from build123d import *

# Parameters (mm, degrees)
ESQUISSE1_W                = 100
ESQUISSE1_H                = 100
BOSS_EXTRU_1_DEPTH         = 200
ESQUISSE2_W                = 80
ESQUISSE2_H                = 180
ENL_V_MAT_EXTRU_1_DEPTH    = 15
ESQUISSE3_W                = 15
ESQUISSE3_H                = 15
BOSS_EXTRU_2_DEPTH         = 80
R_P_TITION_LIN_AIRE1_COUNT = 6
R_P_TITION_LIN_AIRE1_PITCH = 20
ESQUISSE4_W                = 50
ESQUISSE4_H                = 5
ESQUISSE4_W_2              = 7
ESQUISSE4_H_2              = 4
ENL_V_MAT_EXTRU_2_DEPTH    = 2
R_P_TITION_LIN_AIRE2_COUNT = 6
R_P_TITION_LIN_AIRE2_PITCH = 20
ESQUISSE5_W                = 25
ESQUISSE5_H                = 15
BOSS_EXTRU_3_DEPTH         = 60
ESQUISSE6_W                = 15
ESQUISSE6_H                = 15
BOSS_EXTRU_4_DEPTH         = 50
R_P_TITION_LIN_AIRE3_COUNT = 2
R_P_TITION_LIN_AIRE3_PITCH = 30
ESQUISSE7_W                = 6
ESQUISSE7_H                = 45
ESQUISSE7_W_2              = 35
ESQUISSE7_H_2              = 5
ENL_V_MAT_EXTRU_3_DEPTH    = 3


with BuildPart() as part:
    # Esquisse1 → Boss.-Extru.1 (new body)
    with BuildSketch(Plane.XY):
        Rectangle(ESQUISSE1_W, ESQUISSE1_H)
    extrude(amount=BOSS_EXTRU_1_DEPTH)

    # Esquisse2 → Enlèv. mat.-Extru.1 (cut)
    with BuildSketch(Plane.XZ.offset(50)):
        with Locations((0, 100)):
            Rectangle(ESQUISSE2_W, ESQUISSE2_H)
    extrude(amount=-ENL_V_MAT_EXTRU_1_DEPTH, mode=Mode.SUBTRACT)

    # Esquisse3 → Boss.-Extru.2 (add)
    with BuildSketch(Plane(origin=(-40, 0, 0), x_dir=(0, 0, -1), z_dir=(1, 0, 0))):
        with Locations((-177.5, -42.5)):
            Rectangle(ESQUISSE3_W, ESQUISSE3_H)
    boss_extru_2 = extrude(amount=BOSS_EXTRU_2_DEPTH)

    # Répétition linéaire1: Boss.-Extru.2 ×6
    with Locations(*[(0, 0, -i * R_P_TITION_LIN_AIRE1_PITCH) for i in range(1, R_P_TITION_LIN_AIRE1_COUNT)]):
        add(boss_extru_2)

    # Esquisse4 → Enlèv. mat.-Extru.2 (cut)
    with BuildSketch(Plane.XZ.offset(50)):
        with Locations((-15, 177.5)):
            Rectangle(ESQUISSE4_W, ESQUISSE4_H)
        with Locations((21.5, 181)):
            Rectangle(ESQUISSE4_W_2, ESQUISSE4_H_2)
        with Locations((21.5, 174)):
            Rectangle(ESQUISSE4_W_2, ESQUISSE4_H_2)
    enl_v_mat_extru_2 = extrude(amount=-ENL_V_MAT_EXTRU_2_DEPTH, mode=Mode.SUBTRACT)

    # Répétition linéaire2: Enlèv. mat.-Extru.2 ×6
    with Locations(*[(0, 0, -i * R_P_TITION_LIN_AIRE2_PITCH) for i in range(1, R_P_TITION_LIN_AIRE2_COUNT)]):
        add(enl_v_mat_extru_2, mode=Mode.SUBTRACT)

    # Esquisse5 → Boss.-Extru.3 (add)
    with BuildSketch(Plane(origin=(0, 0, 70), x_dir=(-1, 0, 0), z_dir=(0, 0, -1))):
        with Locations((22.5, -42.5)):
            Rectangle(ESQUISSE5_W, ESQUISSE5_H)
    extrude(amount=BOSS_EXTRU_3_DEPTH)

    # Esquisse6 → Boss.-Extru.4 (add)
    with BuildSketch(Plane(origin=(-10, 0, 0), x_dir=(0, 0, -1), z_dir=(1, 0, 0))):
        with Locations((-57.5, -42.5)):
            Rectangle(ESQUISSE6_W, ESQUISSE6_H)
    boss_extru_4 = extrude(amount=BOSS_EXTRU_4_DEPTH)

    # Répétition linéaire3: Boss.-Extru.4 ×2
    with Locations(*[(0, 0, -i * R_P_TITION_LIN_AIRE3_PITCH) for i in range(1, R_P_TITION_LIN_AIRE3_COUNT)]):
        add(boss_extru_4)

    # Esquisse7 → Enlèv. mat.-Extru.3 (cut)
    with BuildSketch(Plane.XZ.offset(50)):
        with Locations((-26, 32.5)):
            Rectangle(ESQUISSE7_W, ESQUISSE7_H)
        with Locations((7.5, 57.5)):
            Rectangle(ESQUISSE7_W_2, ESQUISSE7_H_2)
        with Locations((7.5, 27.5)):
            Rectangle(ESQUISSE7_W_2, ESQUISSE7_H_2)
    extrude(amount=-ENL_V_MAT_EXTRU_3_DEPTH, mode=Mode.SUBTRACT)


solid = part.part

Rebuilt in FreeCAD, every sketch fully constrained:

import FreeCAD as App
import Part
import Sketcher
Q = App.Units.Quantity

doc = App.newDocument("Part")
body = doc.addObject("PartDesign::Body", "Body")

# Sketch on XY plane
sketch1 = body.newObject("Sketcher::SketchObject", "Sketch")
sketch1.AttachmentSupport = (doc.getObject("XY_Plane"), [""])
sketch1.MapMode = "FlatFace"
sketch1.addGeometry([
    Part.LineSegment(App.Vector(-50, 50, 0), App.Vector(-50, -50, 0)),
    Part.LineSegment(App.Vector(-50, -50, 0), App.Vector(50, -50, 0)),
    Part.LineSegment(App.Vector(50, -50, 0), App.Vector(50, 50, 0)),
    Part.LineSegment(App.Vector(50, 50, 0), App.Vector(-50, 50, 0)),
], False)
sketch1.addConstraint([
    Sketcher.Constraint("Coincident", 0, 2, 1, 1),
    Sketcher.Constraint("Coincident", 1, 2, 2, 1),
    Sketcher.Constraint("Coincident", 2, 2, 3, 1),
    Sketcher.Constraint("Coincident", 3, 2, 0, 1),
    Sketcher.Constraint("Vertical", 0),
    Sketcher.Constraint("Horizontal", 1),
    Sketcher.Constraint("Vertical", 2),
    Sketcher.Constraint("Horizontal", 3),
    Sketcher.Constraint("Symmetric", 0, 2, 2, 2, -1, 1),
    Sketcher.Constraint("Equal", 3, 0),
    Sketcher.Constraint("DistanceX", 1, 1, 1, 2, Q("100 mm")),
])
pad1 = body.newObject("PartDesign::Pad", "Pad")
pad1.Profile = sketch1
pad1.Length = 200

# Sketch on XZ plane
sketch2 = body.newObject("Sketcher::SketchObject", "Sketch001")
sketch2.AttachmentSupport = (doc.getObject("XZ_Plane"), [""])
sketch2.MapMode = "FlatFace"
sketch2.AttachmentOffset = App.Placement(App.Vector(0, 0, 50), App.Rotation())
sketch2.addGeometry([
    Part.LineSegment(App.Vector(-40, 190, 0), App.Vector(-40, 10, 0)),
    Part.LineSegment(App.Vector(-40, 10, 0), App.Vector(40, 10, 0)),
    Part.LineSegment(App.Vector(40, 10, 0), App.Vector(40, 190, 0)),
    Part.LineSegment(App.Vector(40, 190, 0), App.Vector(-40, 190, 0)),
], False)
sketch2.addConstraint([
    Sketcher.Constraint("Coincident", 0, 2, 1, 1),
    Sketcher.Constraint("Coincident", 1, 2, 2, 1),
    Sketcher.Constraint("Coincident", 2, 2, 3, 1),
    Sketcher.Constraint("Coincident", 3, 2, 0, 1),
    Sketcher.Constraint("Vertical", 0),
    Sketcher.Constraint("Horizontal", 1),
    Sketcher.Constraint("Vertical", 2),
    Sketcher.Constraint("Horizontal", 3),
    Sketcher.Constraint("DistanceX", 1, 1, 1, 2, Q("80 mm")),
    Sketcher.Constraint("DistanceY", 0, 2, 0, 1, Q("180 mm")),
    Sketcher.Constraint("DistanceX", 0, 2, -1, 1, Q("40 mm")),
    Sketcher.Constraint("DistanceY", -1, 1, 0, 2, Q("10 mm")),
])
pocket1 = body.newObject("PartDesign::Pocket", "Pocket")
pocket1.Profile = sketch2
pocket1.Length = 15

# Sketch on YZ plane
sketch3 = body.newObject("Sketcher::SketchObject", "Sketch002")
sketch3.AttachmentSupport = (doc.getObject("YZ_Plane"), [""])
sketch3.MapMode = "FlatFace"
sketch3.AttachmentOffset = App.Placement(App.Vector(0, 0, -40), App.Rotation())
sketch3.addGeometry([
    Part.LineSegment(App.Vector(-35, 185, 0), App.Vector(-50, 185, 0)),
    Part.LineSegment(App.Vector(-50, 185, 0), App.Vector(-50, 170, 0)),
    Part.LineSegment(App.Vector(-50, 170, 0), App.Vector(-35, 170, 0)),
    Part.LineSegment(App.Vector(-35, 170, 0), App.Vector(-35, 185, 0)),
], False)
sketch3.addConstraint([
    Sketcher.Constraint("Coincident", 0, 2, 1, 1),
    Sketcher.Constraint("Coincident", 1, 2, 2, 1),
    Sketcher.Constraint("Coincident", 2, 2, 3, 1),
    Sketcher.Constraint("Coincident", 3, 2, 0, 1),
    Sketcher.Constraint("Horizontal", 0),
    Sketcher.Constraint("Vertical", 1),
    Sketcher.Constraint("Horizontal", 2),
    Sketcher.Constraint("Vertical", 3),
    Sketcher.Constraint("Equal", 2, 1),
    Sketcher.Constraint("DistanceX", 0, 2, 0, 1, Q("15 mm")),
    Sketcher.Constraint("DistanceX", 0, 2, -1, 1, Q("50 mm")),
    Sketcher.Constraint("DistanceY", -1, 1, 0, 2, Q("185 mm")),
])
pad2 = body.newObject("PartDesign::Pad", "Pad001")
pad2.Profile = sketch3
pad2.Length = 80
doc.recompute()

linearpattern = body.newObject("PartDesign::LinearPattern", "LinearPattern")
linearpattern.Originals = [pad2]
linearpattern.Direction = (doc.getObject("Z_Axis"), [""])
linearpattern.Mode = "offset"
linearpattern.Offset = 20
linearpattern.Occurrences = 6
linearpattern.Reversed = True
body.Tip = linearpattern

# Sketch on XZ plane
sketch4 = body.newObject("Sketcher::SketchObject", "Sketch003")
sketch4.AttachmentSupport = (doc.getObject("XZ_Plane"), [""])
sketch4.MapMode = "FlatFace"
sketch4.AttachmentOffset = App.Placement(App.Vector(0, 0, 50), App.Rotation())
sketch4.addGeometry([
    Part.LineSegment(App.Vector(-40, 180, 0), App.Vector(-40, 175, 0)),  # 0
    Part.LineSegment(App.Vector(-40, 175, 0), App.Vector(10, 175, 0)),  # 1
    Part.LineSegment(App.Vector(10, 175, 0), App.Vector(10, 180, 0)),  # 2
    Part.LineSegment(App.Vector(10, 180, 0), App.Vector(-40, 180, 0)),  # 3
    Part.LineSegment(App.Vector(18, 183, 0), App.Vector(18, 179, 0)),  # 4
    Part.LineSegment(App.Vector(18, 179, 0), App.Vector(25, 179, 0)),  # 5
    Part.LineSegment(App.Vector(25, 179, 0), App.Vector(25, 183, 0)),  # 6
    Part.LineSegment(App.Vector(25, 183, 0), App.Vector(18, 183, 0)),  # 7
    Part.LineSegment(App.Vector(18, 176, 0), App.Vector(18, 172, 0)),  # 8
    Part.LineSegment(App.Vector(18, 172, 0), App.Vector(25, 172, 0)),  # 9
    Part.LineSegment(App.Vector(25, 172, 0), App.Vector(25, 176, 0)),  # 10
    Part.LineSegment(App.Vector(25, 176, 0), App.Vector(18, 176, 0)),  # 11
], False)
sketch4.addConstraint([
    Sketcher.Constraint("Coincident", 0, 2, 1, 1),
    Sketcher.Constraint("Coincident", 1, 2, 2, 1),
    Sketcher.Constraint("Coincident", 2, 2, 3, 1),
    Sketcher.Constraint("Coincident", 3, 2, 0, 1),
    Sketcher.Constraint("Coincident", 4, 2, 5, 1),
    Sketcher.Constraint("Coincident", 5, 2, 6, 1),
    Sketcher.Constraint("Coincident", 6, 2, 7, 1),
    Sketcher.Constraint("Coincident", 7, 2, 4, 1),
    Sketcher.Constraint("Coincident", 8, 2, 9, 1),
    Sketcher.Constraint("Coincident", 9, 2, 10, 1),
    Sketcher.Constraint("Coincident", 10, 2, 11, 1),
    Sketcher.Constraint("Coincident", 11, 2, 8, 1),
    Sketcher.Constraint("Vertical", 0),
    Sketcher.Constraint("Horizontal", 1),
    Sketcher.Constraint("Vertical", 2),
    Sketcher.Constraint("Horizontal", 3),
    Sketcher.Constraint("Vertical", 4),
    Sketcher.Constraint("Horizontal", 5),
    Sketcher.Constraint("Vertical", 6),
    Sketcher.Constraint("Horizontal", 7),
    Sketcher.Constraint("Vertical", 8),
    Sketcher.Constraint("Horizontal", 9),
    Sketcher.Constraint("Vertical", 10),
    Sketcher.Constraint("Horizontal", 11),
    Sketcher.Constraint("Vertical", 7, 2, 8, 2),
    Sketcher.Constraint("Vertical", 6, 2, 9, 2),
    Sketcher.Constraint("Equal", 6, 8),
    Sketcher.Constraint("DistanceX", 1, 1, 1, 2, Q("50 mm")),
    Sketcher.Constraint("DistanceX", 5, 1, 5, 2, Q("7 mm")),
    Sketcher.Constraint("DistanceY", 0, 2, 0, 1, Q("5 mm")),
    Sketcher.Constraint("DistanceY", 4, 2, 4, 1, Q("4 mm")),
    Sketcher.Constraint("DistanceX", 0, 2, -1, 1, Q("40 mm")),
    Sketcher.Constraint("DistanceY", -1, 1, 0, 2, Q("175 mm")),
    Sketcher.Constraint("DistanceX", -1, 1, 4, 2, Q("18 mm")),
    Sketcher.Constraint("DistanceY", -1, 1, 4, 2, Q("179 mm")),
    Sketcher.Constraint("DistanceY", -1, 1, 8, 2, Q("172 mm")),
])
pocket2 = body.newObject("PartDesign::Pocket", "Pocket001")
pocket2.Profile = sketch4
pocket2.Length = 2
doc.recompute()

linearpattern2 = body.newObject("PartDesign::LinearPattern", "LinearPattern001")
linearpattern2.Originals = [pocket2]
linearpattern2.Direction = (doc.getObject("Z_Axis"), [""])
linearpattern2.Mode = "offset"
linearpattern2.Offset = 20
linearpattern2.Occurrences = 6
linearpattern2.Reversed = True
body.Tip = linearpattern2

# Sketch on XY plane
sketch5 = body.newObject("Sketcher::SketchObject", "Sketch004")
sketch5.AttachmentSupport = (doc.getObject("XY_Plane"), [""])
sketch5.MapMode = "FlatFace"
sketch5.AttachmentOffset = App.Placement(App.Vector(0, 0, 70), App.Rotation())
sketch5.addGeometry([
    Part.LineSegment(App.Vector(-10, -35, 0), App.Vector(-10, -50, 0)),
    Part.LineSegment(App.Vector(-10, -50, 0), App.Vector(-35, -50, 0)),
    Part.LineSegment(App.Vector(-35, -50, 0), App.Vector(-35, -35, 0)),
    Part.LineSegment(App.Vector(-35, -35, 0), App.Vector(-10, -35, 0)),
], False)
sketch5.addConstraint([
    Sketcher.Constraint("Coincident", 0, 2, 1, 1),
    Sketcher.Constraint("Coincident", 1, 2, 2, 1),
    Sketcher.Constraint("Coincident", 2, 2, 3, 1),
    Sketcher.Constraint("Coincident", 3, 2, 0, 1),
    Sketcher.Constraint("Vertical", 0),
    Sketcher.Constraint("Horizontal", 1),
    Sketcher.Constraint("Vertical", 2),
    Sketcher.Constraint("Horizontal", 3),
    Sketcher.Constraint("DistanceX", 1, 2, 1, 1, Q("25 mm")),
    Sketcher.Constraint("DistanceY", 0, 2, 0, 1, Q("15 mm")),
    Sketcher.Constraint("DistanceX", 0, 2, -1, 1, Q("10 mm")),
    Sketcher.Constraint("DistanceY", 0, 2, -1, 1, Q("50 mm")),
])
pad3 = body.newObject("PartDesign::Pad", "Pad002")
pad3.Profile = sketch5
pad3.Length = 60
pad3.Reversed = True

# Sketch on YZ plane
sketch6 = body.newObject("Sketcher::SketchObject", "Sketch005")
sketch6.AttachmentSupport = (doc.getObject("YZ_Plane"), [""])
sketch6.MapMode = "FlatFace"
sketch6.AttachmentOffset = App.Placement(App.Vector(0, 0, -10), App.Rotation())
sketch6.addGeometry([
    Part.LineSegment(App.Vector(-35, 65, 0), App.Vector(-50, 65, 0)),
    Part.LineSegment(App.Vector(-50, 65, 0), App.Vector(-50, 50, 0)),
    Part.LineSegment(App.Vector(-50, 50, 0), App.Vector(-35, 50, 0)),
    Part.LineSegment(App.Vector(-35, 50, 0), App.Vector(-35, 65, 0)),
], False)
sketch6.addConstraint([
    Sketcher.Constraint("Coincident", 0, 2, 1, 1),
    Sketcher.Constraint("Coincident", 1, 2, 2, 1),
    Sketcher.Constraint("Coincident", 2, 2, 3, 1),
    Sketcher.Constraint("Coincident", 3, 2, 0, 1),
    Sketcher.Constraint("Horizontal", 0),
    Sketcher.Constraint("Vertical", 1),
    Sketcher.Constraint("Horizontal", 2),
    Sketcher.Constraint("Vertical", 3),
    Sketcher.Constraint("Equal", 2, 1),
    Sketcher.Constraint("DistanceX", 0, 2, 0, 1, Q("15 mm")),
    Sketcher.Constraint("DistanceX", 0, 2, -1, 1, Q("50 mm")),
    Sketcher.Constraint("DistanceY", -1, 1, 0, 2, Q("65 mm")),
])
pad4 = body.newObject("PartDesign::Pad", "Pad003")
pad4.Profile = sketch6
pad4.Length = 50
doc.recompute()

linearpattern3 = body.newObject("PartDesign::LinearPattern", "LinearPattern002")
linearpattern3.Originals = [pad4]
linearpattern3.Direction = (doc.getObject("Z_Axis"), [""])
linearpattern3.Mode = "offset"
linearpattern3.Offset = 30
linearpattern3.Occurrences = 2
linearpattern3.Reversed = True
body.Tip = linearpattern3

# Sketch on XZ plane
sketch7 = body.newObject("Sketcher::SketchObject", "Sketch006")
sketch7.AttachmentSupport = (doc.getObject("XZ_Plane"), [""])
sketch7.MapMode = "FlatFace"
sketch7.AttachmentOffset = App.Placement(App.Vector(0, 0, 50), App.Rotation())
sketch7.addGeometry([
    Part.LineSegment(App.Vector(-29, 55, 0), App.Vector(-29, 10, 0)),  # 0
    Part.LineSegment(App.Vector(-29, 10, 0), App.Vector(-23, 10, 0)),  # 1
    Part.LineSegment(App.Vector(-23, 10, 0), App.Vector(-23, 55, 0)),  # 2
    Part.LineSegment(App.Vector(-23, 55, 0), App.Vector(-29, 55, 0)),  # 3
    Part.LineSegment(App.Vector(-10, 60, 0), App.Vector(-10, 55, 0)),  # 4
    Part.LineSegment(App.Vector(-10, 55, 0), App.Vector(25, 55, 0)),  # 5
    Part.LineSegment(App.Vector(25, 55, 0), App.Vector(25, 60, 0)),  # 6
    Part.LineSegment(App.Vector(25, 60, 0), App.Vector(-10, 60, 0)),  # 7
    Part.LineSegment(App.Vector(-10, 30, 0), App.Vector(-10, 25, 0)),  # 8
    Part.LineSegment(App.Vector(-10, 25, 0), App.Vector(25, 25, 0)),  # 9
    Part.LineSegment(App.Vector(25, 25, 0), App.Vector(25, 30, 0)),  # 10
    Part.LineSegment(App.Vector(25, 30, 0), App.Vector(-10, 30, 0)),  # 11
], False)
sketch7.addConstraint([
    Sketcher.Constraint("Coincident", 0, 2, 1, 1),
    Sketcher.Constraint("Coincident", 1, 2, 2, 1),
    Sketcher.Constraint("Coincident", 2, 2, 3, 1),
    Sketcher.Constraint("Coincident", 3, 2, 0, 1),
    Sketcher.Constraint("Coincident", 4, 2, 5, 1),
    Sketcher.Constraint("Coincident", 5, 2, 6, 1),
    Sketcher.Constraint("Coincident", 6, 2, 7, 1),
    Sketcher.Constraint("Coincident", 7, 2, 4, 1),
    Sketcher.Constraint("Coincident", 8, 2, 9, 1),
    Sketcher.Constraint("Coincident", 9, 2, 10, 1),
    Sketcher.Constraint("Coincident", 10, 2, 11, 1),
    Sketcher.Constraint("Coincident", 11, 2, 8, 1),
    Sketcher.Constraint("Vertical", 0),
    Sketcher.Constraint("Horizontal", 1),
    Sketcher.Constraint("Vertical", 2),
    Sketcher.Constraint("Horizontal", 3),
    Sketcher.Constraint("Vertical", 4),
    Sketcher.Constraint("Horizontal", 5),
    Sketcher.Constraint("Vertical", 6),
    Sketcher.Constraint("Horizontal", 7),
    Sketcher.Constraint("Vertical", 8),
    Sketcher.Constraint("Horizontal", 9),
    Sketcher.Constraint("Vertical", 10),
    Sketcher.Constraint("Horizontal", 11),
    Sketcher.Constraint("Horizontal", 3, 2, 4, 2),
    Sketcher.Constraint("Vertical", 7, 2, 8, 2),
    Sketcher.Constraint("Vertical", 6, 2, 9, 2),
    Sketcher.Constraint("Equal", 6, 8),
    Sketcher.Constraint("DistanceX", 1, 1, 1, 2, Q("6 mm")),
    Sketcher.Constraint("DistanceX", 5, 1, 5, 2, Q("35 mm")),
    Sketcher.Constraint("DistanceY", 0, 2, 0, 1, Q("45 mm")),
    Sketcher.Constraint("DistanceY", 4, 2, 4, 1, Q("5 mm")),
    Sketcher.Constraint("DistanceX", 0, 2, -1, 1, Q("29 mm")),
    Sketcher.Constraint("DistanceY", -1, 1, 0, 2, Q("10 mm")),
    Sketcher.Constraint("DistanceX", 4, 2, -1, 1, Q("10 mm")),
    Sketcher.Constraint("DistanceY", -1, 1, 8, 2, Q("25 mm")),
])
pocket3 = body.newObject("PartDesign::Pocket", "Pocket002")
pocket3.Profile = sketch7
pocket3.Length = 3

doc.recompute()
